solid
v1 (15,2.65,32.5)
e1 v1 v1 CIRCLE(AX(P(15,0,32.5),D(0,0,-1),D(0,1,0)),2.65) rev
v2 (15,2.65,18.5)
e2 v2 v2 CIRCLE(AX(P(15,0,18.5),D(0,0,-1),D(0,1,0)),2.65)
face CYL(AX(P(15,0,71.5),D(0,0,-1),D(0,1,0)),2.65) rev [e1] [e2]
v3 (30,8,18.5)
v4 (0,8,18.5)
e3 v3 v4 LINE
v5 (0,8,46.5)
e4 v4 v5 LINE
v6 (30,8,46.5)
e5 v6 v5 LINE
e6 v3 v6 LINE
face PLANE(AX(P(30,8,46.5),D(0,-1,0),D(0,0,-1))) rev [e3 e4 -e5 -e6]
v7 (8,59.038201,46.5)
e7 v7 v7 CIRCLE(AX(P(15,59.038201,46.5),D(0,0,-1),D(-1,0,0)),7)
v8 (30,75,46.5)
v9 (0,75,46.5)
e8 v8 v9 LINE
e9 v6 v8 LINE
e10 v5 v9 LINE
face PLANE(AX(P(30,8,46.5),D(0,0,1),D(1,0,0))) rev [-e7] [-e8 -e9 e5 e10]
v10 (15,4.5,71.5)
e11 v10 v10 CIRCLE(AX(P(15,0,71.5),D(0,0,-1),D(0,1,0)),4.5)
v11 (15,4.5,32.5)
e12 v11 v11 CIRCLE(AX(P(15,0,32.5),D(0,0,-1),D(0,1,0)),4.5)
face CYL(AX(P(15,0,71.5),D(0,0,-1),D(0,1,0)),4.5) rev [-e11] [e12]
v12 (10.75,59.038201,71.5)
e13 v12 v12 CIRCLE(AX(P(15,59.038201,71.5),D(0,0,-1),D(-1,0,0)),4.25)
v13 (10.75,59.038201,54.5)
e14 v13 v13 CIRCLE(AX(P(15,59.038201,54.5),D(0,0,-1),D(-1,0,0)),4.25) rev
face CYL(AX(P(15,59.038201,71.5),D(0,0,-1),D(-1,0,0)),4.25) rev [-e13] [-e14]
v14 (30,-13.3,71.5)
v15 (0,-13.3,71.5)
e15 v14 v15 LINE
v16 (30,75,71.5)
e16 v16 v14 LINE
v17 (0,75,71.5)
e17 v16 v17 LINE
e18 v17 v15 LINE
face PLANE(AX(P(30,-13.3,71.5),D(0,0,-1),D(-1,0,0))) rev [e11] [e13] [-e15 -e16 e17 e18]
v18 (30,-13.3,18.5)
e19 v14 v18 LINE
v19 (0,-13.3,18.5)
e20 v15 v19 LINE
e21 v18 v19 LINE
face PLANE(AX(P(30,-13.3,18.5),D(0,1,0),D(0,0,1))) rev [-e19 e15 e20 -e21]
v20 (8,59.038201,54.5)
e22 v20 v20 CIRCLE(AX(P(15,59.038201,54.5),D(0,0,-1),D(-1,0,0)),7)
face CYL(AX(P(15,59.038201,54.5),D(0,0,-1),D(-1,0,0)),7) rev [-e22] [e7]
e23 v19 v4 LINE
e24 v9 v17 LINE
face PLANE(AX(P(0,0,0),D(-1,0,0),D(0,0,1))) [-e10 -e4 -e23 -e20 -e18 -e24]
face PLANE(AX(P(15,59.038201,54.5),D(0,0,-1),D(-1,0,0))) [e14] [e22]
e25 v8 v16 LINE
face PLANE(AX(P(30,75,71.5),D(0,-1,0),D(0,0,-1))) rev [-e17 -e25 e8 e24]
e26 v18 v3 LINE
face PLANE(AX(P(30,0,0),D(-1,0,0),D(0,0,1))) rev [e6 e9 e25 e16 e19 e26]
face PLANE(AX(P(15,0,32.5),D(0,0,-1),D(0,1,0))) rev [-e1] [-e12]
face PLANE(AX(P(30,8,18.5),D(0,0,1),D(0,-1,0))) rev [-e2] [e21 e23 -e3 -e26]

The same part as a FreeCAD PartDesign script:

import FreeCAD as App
import Part
import Sketcher

V = App.Vector
Q = App.Units.Quantity

doc = App.newDocument("Part")
params = doc.addObject("Spreadsheet::Sheet", "Params")
for row, (alias, value) in enumerate([
    ("sketch1_width", "67 mm"),
    ("sketch1_height", "28 mm"),
    ("sketch1_height2", "25 mm"),
    ("sketch1_width2", "21.3 mm"),
    ("pad1_length", "30 mm"),
    ("sketch2_diameter", "5.3 mm"),
    ("sketch3_diameter", "9 mm"),
    ("sketch4_diameter", "8.5 mm"),
    ("sketch5_diameter", "14 mm"),
    ("pocket4_length", "8 mm"),
], start=1):
    params.set(f"A{row}", alias)
    params.set(f"B{row}", "=" + value)
    params.setAlias(f"B{row}", alias)

body = doc.addObject("PartDesign::Body", "Body")

sketch1 = body.newObject("Sketcher::SketchObject", "Sketch")
sketch1.AttachmentSupport = (doc.getObject("YZ_Plane"), [""])
sketch1.MapMode = "FlatFace"
sketch1.addGeometry(Part.LineSegment(V(-13.3, 18.5, 0), V(8, 18.5, 0)), False)
sketch1.addGeometry(Part.LineSegment(V(8, 18.5, 0), V(8, 46.5, 0)), False)
sketch1.addGeometry(Part.LineSegment(V(8, 46.5, 0), V(75, 46.5, 0)), False)
sketch1.addGeometry(Part.LineSegment(V(75, 46.5, 0), V(75, 71.5, 0)), False)
sketch1.addGeometry(Part.LineSegment(V(75, 71.5, 0), V(-13.3, 71.5, 0)), False)
sketch1.addGeometry(Part.LineSegment(V(-13.3, 71.5, 0), V(-13.3, 18.5, 0)), False)
sketch1.addConstraint(Sketcher.Constraint("Coincident", 0, 2, 1, 1))
sketch1.addConstraint(Sketcher.Constraint("Coincident", 1, 2, 2, 1))
sketch1.addConstraint(Sketcher.Constraint("Coincident", 2, 2, 3, 1))
sketch1.addConstraint(Sketcher.Constraint("Coincident", 3, 2, 4, 1))
sketch1.addConstraint(Sketcher.Constraint("Coincident", 4, 2, 5, 1))
sketch1.addConstraint(Sketcher.Constraint("Coincident", 5, 2, 0, 1))
sketch1.addConstraint(Sketcher.Constraint("Horizontal", 0))
sketch1.addConstraint(Sketcher.Constraint("Vertical", 1))
sketch1.addConstraint(Sketcher.Constraint("Horizontal", 2))
sketch1.addConstraint(Sketcher.Constraint("Vertical", 3))
sketch1.addConstraint(Sketcher.Constraint("Horizontal", 4))
sketch1.addConstraint(Sketcher.Constraint("Vertical", 5))
sketch1.addConstraint(Sketcher.Constraint("DistanceX", 2, 1, 2, 2, Q("67 mm")))
sketch1.addConstraint(Sketcher.Constraint("DistanceY", 1, 1, 1, 2, Q("28 mm")))
sketch1.addConstraint(Sketcher.Constraint("DistanceY", 3, 1, 3, 2, Q("25 mm")))
sketch1.addConstraint(Sketcher.Constraint("DistanceX", 0, 1, 0, 2, Q("21.3 mm")))
sketch1.addConstraint(Sketcher.Constraint("DistanceX", -1, 1, 0, 2, Q("8 mm")))
sketch1.addConstraint(Sketcher.Constraint("DistanceY", -1, 1, 0, 2, Q("18.5 mm")))
sketch1.setExpression("Constraints[12]", "Params.sketch1_width")
sketch1.setExpression("Constraints[13]", "Params.sketch1_height")
sketch1.setExpression("Constraints[14]", "Params.sketch1_height2")
sketch1.setExpression("Constraints[15]", "Params.sketch1_width2")
pad1 = body.newObject("PartDesign::Pad", "Pad")
pad1.Profile = sketch1
pad1.setExpression("Length", "Params.pad1_length")

sketch2 = body.newObject("Sketcher::SketchObject", "Sketch001")
sketch2.AttachmentSupport = (doc.getObject("XY_Plane"), [""])
sketch2.MapMode = "FlatFace"
sketch2.AttachmentOffset = App.Placement(V(0, 0, 18.5), App.Rotation())
sketch2.addGeometry(Part.Circle(V(15, 0, 0), V(0, 0, 1), 2.65), False)
sketch2.addConstraint(Sketcher.Constraint("PointOnObject", 0, 3, -1))
sketch2.addConstraint(Sketcher.Constraint("Diameter", 0, Q("5.3 mm")))
sketch2.addConstraint(Sketcher.Constraint("DistanceX", -1, 1, 0, 3, Q("15 mm")))
sketch2.setExpression("Constraints[1]", "Params.sketch2_diameter")
pocket1 = body.newObject("PartDesign::Pocket", "Pocket")
pocket1.Profile = sketch2
pocket1.Type = "ThroughAll"
pocket1.Reversed = True

sketch3 = body.newObject("Sketcher::SketchObject", "Sketch002")
sketch3.AttachmentSupport = (doc.getObject("XY_Plane"), [""])
sketch3.MapMode = "FlatFace"
sketch3.AttachmentOffset = App.Placement(V(0, 0, 32.5), App.Rotation())
sketch3.addGeometry(Part.Circle(V(15, 0, 0), V(0, 0, 1), 4.5), False)
sketch3.addConstraint(Sketcher.Constraint("PointOnObject", 0, 3, -1))
sketch3.addConstraint(Sketcher.Constraint("Diameter", 0, Q("9 mm")))
sketch3.addConstraint(Sketcher.Constraint("DistanceX", -1, 1, 0, 3, Q("15 mm")))
sketch3.setExpression("Constraints[1]", "Params.sketch3_diameter")
pocket2 = body.newObject("PartDesign::Pocket", "Pocket001")
pocket2.Profile = sketch3
pocket2.Type = "ThroughAll"
pocket2.Reversed = True

sketch4 = body.newObject("Sketcher::SketchObject", "Sketch003")
sketch4.AttachmentSupport = (doc.getObject("XY_Plane"), [""])
sketch4.MapMode = "FlatFace"
sketch4.AttachmentOffset = App.Placement(V(0, 0, 46.5), App.Rotation())
sketch4.addGeometry(Part.Circle(V(15, 59.038201, 0), V(0, 0, 1), 4.25), False)
sketch4.addConstraint(Sketcher.Constraint("Diameter", 0, Q("8.5 mm")))
sketch4.addConstraint(Sketcher.Constraint("DistanceX", -1, 1, 0, 3, Q("15 mm")))
sketch4.addConstraint(Sketcher.Constraint("DistanceY", -1, 1, 0, 3, Q("59.038201 mm")))
sketch4.setExpression("Constraints[0]", "Params.sketch4_diameter")
pocket3 = body.newObject("PartDesign::Pocket", "Pocket002")
pocket3.Profile = sketch4
pocket3.Type = "ThroughAll"
pocket3.Reversed = True

sketch5 = body.newObject("Sketcher::SketchObject", "Sketch004")
sketch5.AttachmentSupport = (doc.getObject("XY_Plane"), [""])
sketch5.MapMode = "FlatFace"
sketch5.AttachmentOffset = App.Placement(V(0, 0, 46.5), App.Rotation())
sketch5.addGeometry(Part.Circle(V(15, 59.038201, 0), V(0, 0, 1), 7), False)
sketch5.addConstraint(Sketcher.Constraint("Diameter", 0, Q("14 mm")))
sketch5.addConstraint(Sketcher.Constraint("DistanceX", -1, 1, 0, 3, Q("15 mm")))
sketch5.addConstraint(Sketcher.Constraint("DistanceY", -1, 1, 0, 3, Q("59.038201 mm")))
sketch5.setExpression("Constraints[0]", "Params.sketch5_diameter")
pocket4 = body.newObject("PartDesign::Pocket", "Pocket003")
pocket4.Profile = sketch5
pocket4.setExpression("Length", "Params.pocket4_length")
pocket4.Reversed = True

doc.recompute()
